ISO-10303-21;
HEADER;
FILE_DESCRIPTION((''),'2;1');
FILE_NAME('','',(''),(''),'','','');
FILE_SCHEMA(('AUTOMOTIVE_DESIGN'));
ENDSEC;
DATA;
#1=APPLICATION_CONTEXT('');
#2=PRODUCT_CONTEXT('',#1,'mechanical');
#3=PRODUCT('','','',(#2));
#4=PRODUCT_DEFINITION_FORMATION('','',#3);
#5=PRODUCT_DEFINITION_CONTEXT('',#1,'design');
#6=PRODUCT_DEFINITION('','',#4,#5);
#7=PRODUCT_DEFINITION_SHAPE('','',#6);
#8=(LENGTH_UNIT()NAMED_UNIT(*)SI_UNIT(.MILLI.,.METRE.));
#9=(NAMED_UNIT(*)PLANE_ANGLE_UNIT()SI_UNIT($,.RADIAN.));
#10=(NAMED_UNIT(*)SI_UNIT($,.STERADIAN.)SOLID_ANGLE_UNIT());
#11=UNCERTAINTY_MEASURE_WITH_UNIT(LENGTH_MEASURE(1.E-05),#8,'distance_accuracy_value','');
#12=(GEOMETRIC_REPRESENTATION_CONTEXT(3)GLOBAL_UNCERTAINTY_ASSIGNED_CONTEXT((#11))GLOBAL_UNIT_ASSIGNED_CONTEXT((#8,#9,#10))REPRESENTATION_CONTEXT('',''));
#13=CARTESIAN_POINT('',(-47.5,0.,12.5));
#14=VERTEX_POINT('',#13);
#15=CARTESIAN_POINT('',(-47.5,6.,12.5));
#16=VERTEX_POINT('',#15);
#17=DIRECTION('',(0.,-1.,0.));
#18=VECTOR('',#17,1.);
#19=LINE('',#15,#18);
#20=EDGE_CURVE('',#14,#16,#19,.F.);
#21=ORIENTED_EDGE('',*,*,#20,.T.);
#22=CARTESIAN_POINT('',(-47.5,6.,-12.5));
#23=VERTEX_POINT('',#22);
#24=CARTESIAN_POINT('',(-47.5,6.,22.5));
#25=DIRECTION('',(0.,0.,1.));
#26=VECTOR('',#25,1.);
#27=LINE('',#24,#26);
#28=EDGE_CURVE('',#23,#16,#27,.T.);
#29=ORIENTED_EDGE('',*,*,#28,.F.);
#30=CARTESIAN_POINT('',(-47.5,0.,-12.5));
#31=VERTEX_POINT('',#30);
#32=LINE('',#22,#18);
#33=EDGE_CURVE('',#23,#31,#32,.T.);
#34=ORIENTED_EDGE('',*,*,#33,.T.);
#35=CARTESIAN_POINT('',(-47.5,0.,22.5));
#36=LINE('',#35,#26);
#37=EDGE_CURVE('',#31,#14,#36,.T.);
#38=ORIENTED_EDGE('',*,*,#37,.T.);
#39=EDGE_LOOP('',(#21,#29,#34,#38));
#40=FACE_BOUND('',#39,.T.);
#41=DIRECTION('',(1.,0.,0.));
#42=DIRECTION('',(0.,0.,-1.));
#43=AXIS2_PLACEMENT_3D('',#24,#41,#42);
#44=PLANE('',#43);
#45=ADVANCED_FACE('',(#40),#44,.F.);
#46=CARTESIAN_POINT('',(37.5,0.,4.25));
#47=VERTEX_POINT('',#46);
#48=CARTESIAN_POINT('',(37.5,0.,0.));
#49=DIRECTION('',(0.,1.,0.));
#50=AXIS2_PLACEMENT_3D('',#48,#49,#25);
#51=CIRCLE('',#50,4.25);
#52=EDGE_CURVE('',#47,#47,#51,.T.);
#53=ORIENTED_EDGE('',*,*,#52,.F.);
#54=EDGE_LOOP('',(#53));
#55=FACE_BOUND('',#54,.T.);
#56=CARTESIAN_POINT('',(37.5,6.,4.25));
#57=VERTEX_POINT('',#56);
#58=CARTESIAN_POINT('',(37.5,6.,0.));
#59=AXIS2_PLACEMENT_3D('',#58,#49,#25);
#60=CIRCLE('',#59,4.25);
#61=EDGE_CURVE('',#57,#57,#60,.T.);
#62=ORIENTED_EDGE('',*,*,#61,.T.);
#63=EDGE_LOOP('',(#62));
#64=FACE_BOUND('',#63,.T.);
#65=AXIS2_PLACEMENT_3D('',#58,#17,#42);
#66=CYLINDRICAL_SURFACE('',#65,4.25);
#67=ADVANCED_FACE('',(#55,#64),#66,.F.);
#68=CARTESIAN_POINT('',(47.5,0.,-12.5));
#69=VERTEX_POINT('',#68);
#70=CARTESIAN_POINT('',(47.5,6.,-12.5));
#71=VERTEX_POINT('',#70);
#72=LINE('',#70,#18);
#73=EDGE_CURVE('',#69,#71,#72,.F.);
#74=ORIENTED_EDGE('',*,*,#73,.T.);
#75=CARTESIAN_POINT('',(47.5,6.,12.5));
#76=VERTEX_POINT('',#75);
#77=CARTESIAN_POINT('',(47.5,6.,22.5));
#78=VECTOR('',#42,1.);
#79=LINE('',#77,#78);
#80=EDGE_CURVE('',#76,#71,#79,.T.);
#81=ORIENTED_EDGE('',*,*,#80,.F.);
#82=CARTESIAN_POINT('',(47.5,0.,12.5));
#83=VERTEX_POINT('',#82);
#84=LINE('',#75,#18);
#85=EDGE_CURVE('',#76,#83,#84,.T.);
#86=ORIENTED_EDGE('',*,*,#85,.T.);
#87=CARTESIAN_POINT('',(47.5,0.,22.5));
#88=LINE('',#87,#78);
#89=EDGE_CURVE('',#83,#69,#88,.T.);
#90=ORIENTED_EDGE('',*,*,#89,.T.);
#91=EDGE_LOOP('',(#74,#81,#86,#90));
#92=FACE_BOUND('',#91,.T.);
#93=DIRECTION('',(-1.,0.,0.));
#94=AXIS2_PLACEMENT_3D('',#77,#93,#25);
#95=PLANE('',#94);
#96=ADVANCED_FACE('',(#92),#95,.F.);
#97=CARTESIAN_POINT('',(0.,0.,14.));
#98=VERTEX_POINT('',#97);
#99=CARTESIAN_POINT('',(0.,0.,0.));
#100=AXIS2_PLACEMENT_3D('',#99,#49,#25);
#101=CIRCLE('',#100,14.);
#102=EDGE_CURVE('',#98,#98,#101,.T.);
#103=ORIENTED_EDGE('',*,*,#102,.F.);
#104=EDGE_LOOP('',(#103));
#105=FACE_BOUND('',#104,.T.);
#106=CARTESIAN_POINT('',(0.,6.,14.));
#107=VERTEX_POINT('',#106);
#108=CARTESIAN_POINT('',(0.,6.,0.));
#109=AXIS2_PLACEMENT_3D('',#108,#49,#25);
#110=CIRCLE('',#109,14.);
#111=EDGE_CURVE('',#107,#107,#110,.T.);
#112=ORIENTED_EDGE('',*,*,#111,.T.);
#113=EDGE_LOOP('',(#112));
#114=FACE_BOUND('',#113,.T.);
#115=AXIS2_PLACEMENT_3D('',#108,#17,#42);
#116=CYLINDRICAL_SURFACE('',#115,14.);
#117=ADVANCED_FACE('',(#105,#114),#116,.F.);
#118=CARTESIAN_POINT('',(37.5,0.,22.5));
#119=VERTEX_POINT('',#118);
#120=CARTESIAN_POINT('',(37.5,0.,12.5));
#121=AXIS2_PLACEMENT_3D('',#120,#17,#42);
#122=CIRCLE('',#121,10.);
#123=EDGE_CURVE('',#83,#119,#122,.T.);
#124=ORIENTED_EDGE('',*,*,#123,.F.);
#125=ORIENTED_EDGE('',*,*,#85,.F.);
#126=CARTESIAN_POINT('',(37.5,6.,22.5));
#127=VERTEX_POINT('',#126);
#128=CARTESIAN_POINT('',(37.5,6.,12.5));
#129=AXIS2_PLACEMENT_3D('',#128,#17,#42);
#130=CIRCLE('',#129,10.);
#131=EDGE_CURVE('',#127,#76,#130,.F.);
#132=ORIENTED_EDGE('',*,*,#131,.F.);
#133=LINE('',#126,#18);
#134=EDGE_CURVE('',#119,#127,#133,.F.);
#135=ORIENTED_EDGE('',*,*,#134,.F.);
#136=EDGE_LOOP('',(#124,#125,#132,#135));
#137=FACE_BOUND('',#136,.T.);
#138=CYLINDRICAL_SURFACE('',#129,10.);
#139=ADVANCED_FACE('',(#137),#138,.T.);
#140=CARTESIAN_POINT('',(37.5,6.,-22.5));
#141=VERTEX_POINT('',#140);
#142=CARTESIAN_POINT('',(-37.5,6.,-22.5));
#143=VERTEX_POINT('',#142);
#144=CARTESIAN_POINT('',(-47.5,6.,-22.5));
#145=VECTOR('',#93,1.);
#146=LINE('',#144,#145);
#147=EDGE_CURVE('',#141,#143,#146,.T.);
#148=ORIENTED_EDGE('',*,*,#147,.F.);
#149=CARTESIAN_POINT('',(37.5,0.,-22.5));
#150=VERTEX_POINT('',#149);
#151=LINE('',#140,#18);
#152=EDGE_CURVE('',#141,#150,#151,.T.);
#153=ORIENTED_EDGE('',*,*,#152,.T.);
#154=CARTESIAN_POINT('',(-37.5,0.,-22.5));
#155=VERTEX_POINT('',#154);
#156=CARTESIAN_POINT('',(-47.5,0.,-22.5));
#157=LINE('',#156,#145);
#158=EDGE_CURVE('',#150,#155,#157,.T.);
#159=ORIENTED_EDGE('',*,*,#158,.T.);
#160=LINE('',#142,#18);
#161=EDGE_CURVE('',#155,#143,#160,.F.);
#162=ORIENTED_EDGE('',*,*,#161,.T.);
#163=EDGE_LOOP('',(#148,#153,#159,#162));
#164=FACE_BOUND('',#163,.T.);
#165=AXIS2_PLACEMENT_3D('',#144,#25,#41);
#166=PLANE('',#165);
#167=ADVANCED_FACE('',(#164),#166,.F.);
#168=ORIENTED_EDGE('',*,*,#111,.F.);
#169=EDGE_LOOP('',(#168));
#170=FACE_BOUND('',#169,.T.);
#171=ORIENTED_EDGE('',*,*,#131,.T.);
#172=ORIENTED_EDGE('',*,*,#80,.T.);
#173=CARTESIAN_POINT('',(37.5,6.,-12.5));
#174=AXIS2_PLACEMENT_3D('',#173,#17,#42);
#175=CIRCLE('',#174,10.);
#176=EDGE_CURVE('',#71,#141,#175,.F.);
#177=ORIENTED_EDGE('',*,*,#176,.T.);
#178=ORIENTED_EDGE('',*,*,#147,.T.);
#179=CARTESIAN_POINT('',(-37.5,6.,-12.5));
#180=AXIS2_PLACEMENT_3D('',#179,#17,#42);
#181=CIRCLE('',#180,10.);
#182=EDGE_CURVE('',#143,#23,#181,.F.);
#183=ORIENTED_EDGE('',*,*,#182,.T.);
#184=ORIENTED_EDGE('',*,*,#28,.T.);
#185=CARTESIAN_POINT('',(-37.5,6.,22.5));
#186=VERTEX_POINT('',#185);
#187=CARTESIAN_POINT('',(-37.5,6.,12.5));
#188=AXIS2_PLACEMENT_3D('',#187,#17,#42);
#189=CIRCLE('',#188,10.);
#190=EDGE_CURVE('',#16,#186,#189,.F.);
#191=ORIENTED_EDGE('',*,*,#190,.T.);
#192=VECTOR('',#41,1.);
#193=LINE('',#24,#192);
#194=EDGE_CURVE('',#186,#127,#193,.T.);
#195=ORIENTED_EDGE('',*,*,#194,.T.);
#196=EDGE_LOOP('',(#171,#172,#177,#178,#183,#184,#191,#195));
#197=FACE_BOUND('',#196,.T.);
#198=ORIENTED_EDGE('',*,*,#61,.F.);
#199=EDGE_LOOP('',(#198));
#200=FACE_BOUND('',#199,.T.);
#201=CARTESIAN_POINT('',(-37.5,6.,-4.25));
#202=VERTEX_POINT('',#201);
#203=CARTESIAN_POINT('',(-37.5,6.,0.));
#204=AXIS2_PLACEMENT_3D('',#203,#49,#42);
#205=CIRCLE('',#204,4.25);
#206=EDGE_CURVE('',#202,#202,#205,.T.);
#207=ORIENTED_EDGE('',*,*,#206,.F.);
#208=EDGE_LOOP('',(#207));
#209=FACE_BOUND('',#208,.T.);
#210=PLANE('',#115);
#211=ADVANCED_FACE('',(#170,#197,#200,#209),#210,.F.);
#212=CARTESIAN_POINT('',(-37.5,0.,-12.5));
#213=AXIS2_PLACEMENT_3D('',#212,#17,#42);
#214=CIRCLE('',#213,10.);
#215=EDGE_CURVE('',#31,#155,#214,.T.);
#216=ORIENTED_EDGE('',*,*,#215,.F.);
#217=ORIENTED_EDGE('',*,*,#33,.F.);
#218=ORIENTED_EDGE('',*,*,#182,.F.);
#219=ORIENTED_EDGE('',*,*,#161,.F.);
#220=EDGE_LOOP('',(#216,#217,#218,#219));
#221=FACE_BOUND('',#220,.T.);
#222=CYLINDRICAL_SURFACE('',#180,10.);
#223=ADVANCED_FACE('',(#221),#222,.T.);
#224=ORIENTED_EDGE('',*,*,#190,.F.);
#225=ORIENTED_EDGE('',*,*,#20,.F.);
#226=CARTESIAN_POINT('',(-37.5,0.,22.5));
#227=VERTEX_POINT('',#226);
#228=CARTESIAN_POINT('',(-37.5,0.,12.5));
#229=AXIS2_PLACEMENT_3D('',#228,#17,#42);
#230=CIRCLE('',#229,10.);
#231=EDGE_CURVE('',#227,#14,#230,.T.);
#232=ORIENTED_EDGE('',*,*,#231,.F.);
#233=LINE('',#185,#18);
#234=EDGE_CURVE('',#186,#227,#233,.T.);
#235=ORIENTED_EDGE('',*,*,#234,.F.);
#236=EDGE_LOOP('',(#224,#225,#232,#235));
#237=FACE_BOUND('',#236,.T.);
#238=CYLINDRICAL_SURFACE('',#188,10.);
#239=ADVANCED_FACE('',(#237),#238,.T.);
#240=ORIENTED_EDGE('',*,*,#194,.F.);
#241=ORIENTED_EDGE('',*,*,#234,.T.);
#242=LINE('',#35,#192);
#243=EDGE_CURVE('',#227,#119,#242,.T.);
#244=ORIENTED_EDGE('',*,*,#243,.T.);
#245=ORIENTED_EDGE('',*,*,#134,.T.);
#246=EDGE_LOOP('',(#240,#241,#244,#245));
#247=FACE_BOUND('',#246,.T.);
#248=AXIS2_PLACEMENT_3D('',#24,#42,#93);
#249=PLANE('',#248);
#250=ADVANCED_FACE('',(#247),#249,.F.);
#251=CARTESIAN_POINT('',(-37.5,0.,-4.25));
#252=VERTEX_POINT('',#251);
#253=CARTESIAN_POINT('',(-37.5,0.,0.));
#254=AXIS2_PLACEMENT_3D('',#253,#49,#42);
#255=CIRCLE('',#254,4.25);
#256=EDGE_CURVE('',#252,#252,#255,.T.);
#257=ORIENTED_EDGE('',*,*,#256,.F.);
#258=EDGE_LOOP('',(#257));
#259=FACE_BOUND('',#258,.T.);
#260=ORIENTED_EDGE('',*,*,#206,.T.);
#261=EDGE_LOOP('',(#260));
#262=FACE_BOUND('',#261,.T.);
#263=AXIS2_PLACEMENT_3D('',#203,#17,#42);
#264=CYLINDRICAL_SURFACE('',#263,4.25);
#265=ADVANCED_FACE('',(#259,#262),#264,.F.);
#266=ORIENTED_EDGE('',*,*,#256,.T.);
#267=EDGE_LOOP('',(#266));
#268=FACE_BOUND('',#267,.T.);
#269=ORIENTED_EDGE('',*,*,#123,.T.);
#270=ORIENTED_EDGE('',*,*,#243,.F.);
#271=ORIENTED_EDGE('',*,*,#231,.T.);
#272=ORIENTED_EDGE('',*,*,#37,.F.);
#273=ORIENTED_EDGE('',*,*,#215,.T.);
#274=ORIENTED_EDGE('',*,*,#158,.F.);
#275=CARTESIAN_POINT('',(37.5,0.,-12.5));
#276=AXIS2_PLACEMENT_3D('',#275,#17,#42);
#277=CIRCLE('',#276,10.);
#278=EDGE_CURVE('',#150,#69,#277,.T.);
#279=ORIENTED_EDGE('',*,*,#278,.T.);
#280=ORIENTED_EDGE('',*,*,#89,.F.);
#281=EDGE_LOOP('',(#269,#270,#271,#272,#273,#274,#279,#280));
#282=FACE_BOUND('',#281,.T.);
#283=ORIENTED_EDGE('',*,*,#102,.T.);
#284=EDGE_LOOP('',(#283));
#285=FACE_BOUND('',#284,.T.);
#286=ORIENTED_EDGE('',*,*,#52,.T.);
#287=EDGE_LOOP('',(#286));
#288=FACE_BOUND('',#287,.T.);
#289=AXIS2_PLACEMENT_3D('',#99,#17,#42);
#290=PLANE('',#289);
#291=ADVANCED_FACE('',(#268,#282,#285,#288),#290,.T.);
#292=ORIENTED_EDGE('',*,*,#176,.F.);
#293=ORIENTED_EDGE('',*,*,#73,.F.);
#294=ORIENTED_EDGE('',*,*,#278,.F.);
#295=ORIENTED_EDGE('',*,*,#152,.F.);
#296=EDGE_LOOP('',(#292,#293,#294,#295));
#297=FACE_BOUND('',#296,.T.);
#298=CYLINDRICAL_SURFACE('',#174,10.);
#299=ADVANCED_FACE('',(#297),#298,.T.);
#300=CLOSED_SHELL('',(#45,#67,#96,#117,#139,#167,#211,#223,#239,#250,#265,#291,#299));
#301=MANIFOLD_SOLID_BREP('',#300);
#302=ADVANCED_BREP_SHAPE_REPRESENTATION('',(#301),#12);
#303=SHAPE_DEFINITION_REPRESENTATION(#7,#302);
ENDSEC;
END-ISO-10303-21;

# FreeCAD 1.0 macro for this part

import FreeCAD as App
import Part
import Sketcher
from FreeCAD import Vector


def edges_at(feature, points):
    """Names of the edges that pass closest to the given points."""
    edges = feature.Shape.Edges
    near = lambda p: min(range(len(edges)), key=lambda i: edges[i].distToShape(Part.Vertex(*p))[0])
    return sorted({f"Edge{near(p) + 1}" for p in points})


def add_polygon(sketch, points):
    """Adds a closed chain of lines whose ends are joined by coincident constraints."""
    first, n = sketch.GeometryCount, len(points)
    for a, b in zip(points, points[1:] + points[:1]):
        sketch.addGeometry(Part.LineSegment(App.Vector(*a, 0), App.Vector(*b, 0)), False)
    for i in range(n):
        sketch.addConstraint(Sketcher.Constraint("Coincident", first + i, 2, first + (i + 1) % n, 1))

doc = App.newDocument("Part")
body = doc.addObject("PartDesign::Body", "Body")

# Sketch on XZ plane
sketch1 = body.newObject("Sketcher::SketchObject", "Sketch")
sketch1.AttachmentSupport = (doc.getObject("XZ_Plane"), [""])
sketch1.MapMode = "FlatFace"
add_polygon(sketch1, [(-47.5, -22.5), (-47.5, 22.5), (47.5, 22.5), (47.5, -22.5)])  # lines 0-3
sketch1.addGeometry(Part.Circle(Vector(-37.5, 0, 0), Vector(0, 0, 1), 4.2), False)  # 4
sketch1.addGeometry(Part.Circle(Vector(0, 0, 0), Vector(0, 0, 1), 14), False)  # 5
sketch1.addGeometry(Part.Circle(Vector(37.5, 0, 0), Vector(0, 0, 1), 4.2), False)  # 6
sketch1.addConstraint([
    Sketcher.Constraint("Vertical", 0),
    Sketcher.Constraint("Horizontal", 1),
    Sketcher.Constraint("Vertical", 2),
    Sketcher.Constraint("Horizontal", 3),
    Sketcher.Constraint("Coincident", 5, 3, -1, 1),
    Sketcher.Constraint("Equal", 4, 6),
    Sketcher.Constraint("Symmetric", 4, 3, 6, 3, -1, 1),
    Sketcher.Constraint("Symmetric", 0, 2, 2, 2, -1, 1),
    Sketcher.Constraint("PointOnObject", 4, 3, -1),
    Sketcher.Constraint("Diameter", 5, 28.0),
    Sketcher.Constraint("Diameter", 4, 8.5),
    Sketcher.Constraint("DistanceX", 1, 1, 1, 2, 95.0),
    Sketcher.Constraint("DistanceY", 0, 1, 0, 2, 45.0),
    Sketcher.Constraint("DistanceX", 4, 3, 6, 3, 75.0),
])
pad1 = body.newObject("PartDesign::Pad", "Pad")
pad1.Profile = sketch1
pad1.Length = 6
pad1.Reversed = True
doc.recompute()

fillet = body.newObject("PartDesign::Fillet", "Fillet")
fillet.Base = (pad1, edges_at(pad1, [
    (47.5, 3, 22.5),
    (-47.5, 3, 22.5),
    (-47.5, 3, -22.5),
    (47.5, 3, -22.5),
]))
fillet.Radius = 10

doc.recompute()
